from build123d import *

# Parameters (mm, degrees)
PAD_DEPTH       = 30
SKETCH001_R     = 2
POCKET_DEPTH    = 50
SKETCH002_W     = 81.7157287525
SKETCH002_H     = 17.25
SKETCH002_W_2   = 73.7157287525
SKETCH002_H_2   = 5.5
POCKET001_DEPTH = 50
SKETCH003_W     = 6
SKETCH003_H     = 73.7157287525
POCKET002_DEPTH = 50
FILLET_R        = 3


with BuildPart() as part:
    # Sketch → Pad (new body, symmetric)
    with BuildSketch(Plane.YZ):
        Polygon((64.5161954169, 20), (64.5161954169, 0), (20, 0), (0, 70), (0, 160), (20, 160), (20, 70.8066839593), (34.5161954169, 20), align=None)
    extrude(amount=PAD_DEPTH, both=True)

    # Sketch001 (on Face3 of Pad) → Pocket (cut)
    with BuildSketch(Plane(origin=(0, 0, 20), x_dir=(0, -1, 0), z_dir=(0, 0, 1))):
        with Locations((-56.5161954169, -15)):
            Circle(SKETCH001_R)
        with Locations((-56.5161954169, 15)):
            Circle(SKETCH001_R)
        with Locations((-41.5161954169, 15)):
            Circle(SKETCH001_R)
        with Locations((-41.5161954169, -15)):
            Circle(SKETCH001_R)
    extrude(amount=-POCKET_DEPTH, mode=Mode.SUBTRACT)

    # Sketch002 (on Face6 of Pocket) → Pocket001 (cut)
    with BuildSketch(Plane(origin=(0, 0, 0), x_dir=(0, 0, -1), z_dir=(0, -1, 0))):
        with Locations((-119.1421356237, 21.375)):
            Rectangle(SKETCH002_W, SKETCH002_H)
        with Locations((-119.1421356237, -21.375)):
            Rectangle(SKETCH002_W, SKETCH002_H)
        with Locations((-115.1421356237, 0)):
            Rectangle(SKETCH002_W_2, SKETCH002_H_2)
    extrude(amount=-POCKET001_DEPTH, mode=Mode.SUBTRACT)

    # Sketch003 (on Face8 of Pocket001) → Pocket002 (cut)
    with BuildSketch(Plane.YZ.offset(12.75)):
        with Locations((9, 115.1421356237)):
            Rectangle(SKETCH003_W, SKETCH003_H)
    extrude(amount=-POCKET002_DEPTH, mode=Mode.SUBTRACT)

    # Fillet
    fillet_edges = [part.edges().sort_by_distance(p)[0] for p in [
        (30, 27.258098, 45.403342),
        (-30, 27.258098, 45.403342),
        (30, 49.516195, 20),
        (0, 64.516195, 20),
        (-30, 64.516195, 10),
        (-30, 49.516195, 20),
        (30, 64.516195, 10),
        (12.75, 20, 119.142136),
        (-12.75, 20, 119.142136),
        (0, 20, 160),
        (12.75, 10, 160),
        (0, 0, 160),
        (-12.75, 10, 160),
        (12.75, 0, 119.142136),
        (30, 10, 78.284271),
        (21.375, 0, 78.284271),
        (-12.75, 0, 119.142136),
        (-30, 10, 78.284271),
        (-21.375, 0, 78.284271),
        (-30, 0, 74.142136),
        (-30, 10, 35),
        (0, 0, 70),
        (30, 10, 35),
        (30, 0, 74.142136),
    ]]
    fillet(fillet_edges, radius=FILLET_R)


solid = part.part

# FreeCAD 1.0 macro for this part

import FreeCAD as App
import Part
import Sketcher


def edges_at(feature, points):
    """Names of the edges that pass closest to the given points."""
    edges = feature.Shape.Edges
    near = lambda p: min(range(len(edges)), key=lambda i: edges[i].distToShape(Part.Vertex(*p))[0])
    return sorted({f"Edge{near(p) + 1}" for p in points})

doc = App.newDocument("Part")
body = doc.addObject("PartDesign::Body", "Body")

# Sketch on YZ plane
sketch1 = doc.addObject("Sketcher::SketchObject", "Sketch")
body.addObject(sketch1)
sketch1.AttachmentSupport = (doc.YZ_Plane, [""])
sketch1.MapMode = "FlatFace"
sketch1.addGeometry(Part.LineSegment(App.Vector(65, 0, 0), App.Vector(65, 20, 0)), False)
sketch1.addGeometry(Part.LineSegment(App.Vector(65, 20, 0), App.Vector(35, 20, 0)), False)
sketch1.addGeometry(Part.LineSegment(App.Vector(35, 20, 0), App.Vector(20, 71, 0)), False)
sketch1.addGeometry(Part.LineSegment(App.Vector(20, 71, 0), App.Vector(20, 160, 0)), False)
sketch1.addGeometry(Part.LineSegment(App.Vector(20, 160, 0), App.Vector(0, 160, 0)), False)
sketch1.addGeometry(Part.LineSegment(App.Vector(0, 160, 0), App.Vector(0, 70, 0)), False)
sketch1.addGeometry(Part.LineSegment(App.Vector(0, 70, 0), App.Vector(20, 0, 0)), False)
sketch1.addGeometry(Part.LineSegment(App.Vector(20, 0, 0), App.Vector(65, 0, 0)), False)
sketch1.addConstraint(Sketcher.Constraint("Coincident", 0, 2, 1, 1))
sketch1.addConstraint(Sketcher.Constraint("Coincident", 1, 2, 2, 1))
sketch1.addConstraint(Sketcher.Constraint("Coincident", 2, 2, 3, 1))
sketch1.addConstraint(Sketcher.Constraint("Coincident", 3, 2, 4, 1))
sketch1.addConstraint(Sketcher.Constraint("Coincident", 4, 2, 5, 1))
sketch1.addConstraint(Sketcher.Constraint("Coincident", 5, 2, 6, 1))
sketch1.addConstraint(Sketcher.Constraint("Coincident", 6, 2, 7, 1))
sketch1.addConstraint(Sketcher.Constraint("Coincident", 7, 2, 0, 1))
sketch1.addConstraint(Sketcher.Constraint("Vertical", 0))
sketch1.addConstraint(Sketcher.Constraint("Horizontal", 1))
sketch1.addConstraint(Sketcher.Constraint("Vertical", 3))
sketch1.addConstraint(Sketcher.Constraint("Horizontal", 4))
sketch1.addConstraint(Sketcher.Constraint("Vertical", 5))
sketch1.addConstraint(Sketcher.Constraint("Horizontal", 7))
sketch1.addConstraint(Sketcher.Constraint("PointOnObject", 4, 2, -2))
sketch1.addConstraint(Sketcher.Constraint("PointOnObject", 6, 2, -1))
sketch1.addConstraint(Sketcher.Constraint("Parallel", 2, 6))
sketch1.addConstraint(Sketcher.Constraint("Vertical", 3, 2, 6, 2))
sketch1.addConstraint(Sketcher.Constraint("Equal", 4, 0))
sketch1.addConstraint(Sketcher.Constraint("DistanceX", 1, 2, 1, 1, 30.0))
sketch1.addConstraint(Sketcher.Constraint("DistanceX", 4, 2, 4, 1, 20.0))
sketch1.addConstraint(Sketcher.Constraint("DistanceY", 5, 2, 5, 1, 90.0))
sketch1.addConstraint(Sketcher.Constraint("DistanceY", -1, 1, 3, 2, 160.0))
sketch1.addConstraint(Sketcher.Constraint("Distance", 2, 52.839749))
pad1 = doc.addObject("PartDesign::Pad", "Pad")
body.addObject(pad1)
pad1.Profile = sketch1
pad1.Length = 60
pad1.Midplane = True

# Sketch on XY plane
sketch2 = doc.addObject("Sketcher::SketchObject", "Sketch001")
body.addObject(sketch2)
sketch2.AttachmentSupport = (doc.XY_Plane, [""])
sketch2.MapMode = "FlatFace"
sketch2.AttachmentOffset = App.Placement(App.Vector(0, 0, 20), App.Rotation())
sketch2.addGeometry(Part.Circle(App.Vector(-15, 56.5, 0), App.Vector(0, 0, 1), 2), False)
sketch2.addGeometry(Part.Circle(App.Vector(15, 56.5, 0), App.Vector(0, 0, 1), 2), False)
sketch2.addGeometry(Part.Circle(App.Vector(15, 41.5, 0), App.Vector(0, 0, 1), 2), False)
sketch2.addGeometry(Part.Circle(App.Vector(-15, 41.5, 0), App.Vector(0, 0, 1), 2), False)
sketch2.addConstraint(Sketcher.Constraint("Equal", 0, 1))
sketch2.addConstraint(Sketcher.Constraint("Equal", 1, 2))
sketch2.addConstraint(Sketcher.Constraint("Equal", 2, 3))
sketch2.addConstraint(Sketcher.Constraint("Symmetric", 0, 3, 1, 3, -2))
sketch2.addConstraint(Sketcher.Constraint("Symmetric", 2, 3, 3, 3, -2))
sketch2.addConstraint(Sketcher.Constraint("Vertical", 1, 3, 2, 3))
sketch2.addConstraint(Sketcher.Constraint("Diameter", 0, 4.0))
sketch2.addConstraint(Sketcher.Constraint("DistanceX", 0, 3, -1, 1, 15.0))
sketch2.addConstraint(Sketcher.Constraint("DistanceY", 2, 3, 1, 3, 15.0))
sketch2.addConstraint(Sketcher.Constraint("DistanceY", -1, 1, 0, 3, 56.516195))
pocket1 = doc.addObject("PartDesign::Pocket", "Pocket")
body.addObject(pocket1)
pocket1.Profile = sketch2
pocket1.Length = 50

# Sketch on XZ plane
sketch3 = doc.addObject("Sketcher::SketchObject", "Sketch002")
body.addObject(sketch3)
sketch3.AttachmentSupport = (doc.XZ_Plane, [""])
sketch3.MapMode = "FlatFace"
sketch3.addGeometry(Part.LineSegment(App.Vector(30, 160, 0), App.Vector(13, 160, 0)), False)
sketch3.addGeometry(Part.LineSegment(App.Vector(13, 160, 0), App.Vector(13, 78, 0)), False)
sketch3.addGeometry(Part.LineSegment(App.Vector(13, 78, 0), App.Vector(30, 78, 0)), False)
sketch3.addGeometry(Part.LineSegment(App.Vector(30, 78, 0), App.Vector(30, 160, 0)), False)
sketch3.addGeometry(Part.LineSegment(App.Vector(-13, 160, 0), App.Vector(-30, 160, 0)), False)
sketch3.addGeometry(Part.LineSegment(App.Vector(-30, 160, 0), App.Vector(-30, 78, 0)), False)
sketch3.addGeometry(Part.LineSegment(App.Vector(-30, 78, 0), App.Vector(-13, 78, 0)), False)
sketch3.addGeometry(Part.LineSegment(App.Vector(-13, 78, 0), App.Vector(-13, 160, 0)), False)
sketch3.addGeometry(Part.LineSegment(App.Vector(3, 152, 0), App.Vector(-3, 152, 0)), False)
sketch3.addGeometry(Part.LineSegment(App.Vector(-3, 152, 0), App.Vector(-3, 78, 0)), False)
sketch3.addGeometry(Part.LineSegment(App.Vector(-3, 78, 0), App.Vector(3, 78, 0)), False)
sketch3.addGeometry(Part.LineSegment(App.Vector(3, 78, 0), App.Vector(3, 152, 0)), False)
sketch3.addConstraint(Sketcher.Constraint("Coincident", 0, 2, 1, 1))
sketch3.addConstraint(Sketcher.Constraint("Coincident", 1, 2, 2, 1))
sketch3.addConstraint(Sketcher.Constraint("Coincident", 2, 2, 3, 1))
sketch3.addConstraint(Sketcher.Constraint("Coincident", 3, 2, 0, 1))
sketch3.addConstraint(Sketcher.Constraint("Coincident", 4, 2, 5, 1))
sketch3.addConstraint(Sketcher.Constraint("Coincident", 5, 2, 6, 1))
sketch3.addConstraint(Sketcher.Constraint("Coincident", 6, 2, 7, 1))
sketch3.addConstraint(Sketcher.Constraint("Coincident", 7, 2, 4, 1))
sketch3.addConstraint(Sketcher.Constraint("Coincident", 8, 2, 9, 1))
sketch3.addConstraint(Sketcher.Constraint("Coincident", 9, 2, 10, 1))
sketch3.addConstraint(Sketcher.Constraint("Coincident", 10, 2, 11, 1))
sketch3.addConstraint(Sketcher.Constraint("Coincident", 11, 2, 8, 1))
sketch3.addConstraint(Sketcher.Constraint("Horizontal", 0))
sketch3.addConstraint(Sketcher.Constraint("Vertical", 1))
sketch3.addConstraint(Sketcher.Constraint("Horizontal", 2))
sketch3.addConstraint(Sketcher.Constraint("Vertical", 3))
sketch3.addConstraint(Sketcher.Constraint("Horizontal", 4))
sketch3.addConstraint(Sketcher.Constraint("Vertical", 5))
sketch3.addConstraint(Sketcher.Constraint("Horizontal", 6))
sketch3.addConstraint(Sketcher.Constraint("Vertical", 7))
sketch3.addConstraint(Sketcher.Constraint("Horizontal", 8))
sketch3.addConstraint(Sketcher.Constraint("Vertical", 9))
sketch3.addConstraint(Sketcher.Constraint("Horizontal", 10))
sketch3.addConstraint(Sketcher.Constraint("Vertical", 11))
sketch3.addConstraint(Sketcher.Constraint("Symmetric", 3, 2, 4, 2, -2))
sketch3.addConstraint(Sketcher.Constraint("Symmetric", 1, 2, 6, 2, -2))
sketch3.addConstraint(Sketcher.Constraint("Horizontal", 6, 2, 9, 2))
sketch3.addConstraint(Sketcher.Constraint("DistanceX", 8, 2, 8, 1, 5.5))
sketch3.addConstraint(Sketcher.Constraint("DistanceY", -1, 1, 0, 2, 160.0))
sketch3.addConstraint(Sketcher.Constraint("DistanceX", -1, 1, 2, 2, 30.0))
sketch3.addConstraint(Sketcher.Constraint("DistanceY", -1, 1, 8, 2, 152.0))
sketch3.addConstraint(Sketcher.Constraint("DistanceX", 7, 2, 8, 2, 10.0))
sketch3.addConstraint(Sketcher.Constraint("DistanceX", 10, 2, 1, 2, 10.0))
sketch3.addConstraint(Sketcher.Constraint("DistanceY", 1, 2, 1, 1, 81.715729))
pocket2 = doc.addObject("PartDesign::Pocket", "Pocket001")
body.addObject(pocket2)
pocket2.Profile = sketch3
pocket2.Length = 50

# Sketch on YZ plane
sketch4 = doc.addObject("Sketcher::SketchObject", "Sketch003")
body.addObject(sketch4)
sketch4.AttachmentSupport = (doc.YZ_Plane, [""])
sketch4.MapMode = "FlatFace"
sketch4.AttachmentOffset = App.Placement(App.Vector(0, 0, 12.75), App.Rotation())
sketch4.addGeometry(Part.LineSegment(App.Vector(6, 152, 0), App.Vector(6, 78, 0)), False)
sketch4.addGeometry(Part.LineSegment(App.Vector(6, 78, 0), App.Vector(12, 78, 0)), False)
sketch4.addGeometry(Part.LineSegment(App.Vector(12, 78, 0), App.Vector(12, 152, 0)), False)
sketch4.addGeometry(Part.LineSegment(App.Vector(12, 152, 0), App.Vector(6, 152, 0)), False)
sketch4.addConstraint(Sketcher.Constraint("Coincident", 0, 2, 1, 1))
sketch4.addConstraint(Sketcher.Constraint("Coincident", 1, 2, 2, 1))
sketch4.addConstraint(Sketcher.Constraint("Coincident", 2, 2, 3, 1))
sketch4.addConstraint(Sketcher.Constraint("Coincident", 3, 2, 0, 1))
sketch4.addConstraint(Sketcher.Constraint("Vertical", 0))
sketch4.addConstraint(Sketcher.Constraint("Horizontal", 1))
sketch4.addConstraint(Sketcher.Constraint("Vertical", 2))
sketch4.addConstraint(Sketcher.Constraint("Horizontal", 3))
sketch4.addConstraint(Sketcher.Constraint("DistanceX", 1, 1, 1, 2, 6.0))
sketch4.addConstraint(Sketcher.Constraint("DistanceX", -1, 1, 0, 2, 6.0))
sketch4.addConstraint(Sketcher.Constraint("DistanceY", -1, 1, 2, 2, 152.0))
sketch4.addConstraint(Sketcher.Constraint("DistanceY", 0, 2, 0, 1, 73.715729))
pocket3 = doc.addObject("PartDesign::Pocket", "Pocket002")
body.addObject(pocket3)
pocket3.Profile = sketch4
pocket3.Length = 50
doc.recompute()

fillet = doc.addObject("PartDesign::Fillet", "Fillet")
body.addObject(fillet)
fillet.Base = (pocket3, edges_at(pocket3, [
    (30, 27.258, 45.403),
    (-30, 27.258, 45.403),
    (30, 49.516, 20),
    (0, 64.516, 20),
    (-30, 64.516, 10),
    (-30, 49.516, 20),
    (30, 64.516, 10),
    (12.75, 20, 119.142),
    (-12.75, 20, 119.142),
    (0, 20, 160),
    (12.75, 10, 160),
    (0, 0, 160),
    (-12.75, 10, 160),
    (12.75, 0, 119.142),
    (30, 10, 78.284),
    (21.375, 0, 78.284),
    (-12.75, 0, 119.142),
    (-30, 10, 78.284),
    (-21.375, 0, 78.284),
    (-30, 0, 74.142),
    (-30, 10, 35),
    (0, 0, 70),
    (30, 10, 35),
    (30, 0, 74.142),
]))
fillet.Radius = 3

doc.recompute()
